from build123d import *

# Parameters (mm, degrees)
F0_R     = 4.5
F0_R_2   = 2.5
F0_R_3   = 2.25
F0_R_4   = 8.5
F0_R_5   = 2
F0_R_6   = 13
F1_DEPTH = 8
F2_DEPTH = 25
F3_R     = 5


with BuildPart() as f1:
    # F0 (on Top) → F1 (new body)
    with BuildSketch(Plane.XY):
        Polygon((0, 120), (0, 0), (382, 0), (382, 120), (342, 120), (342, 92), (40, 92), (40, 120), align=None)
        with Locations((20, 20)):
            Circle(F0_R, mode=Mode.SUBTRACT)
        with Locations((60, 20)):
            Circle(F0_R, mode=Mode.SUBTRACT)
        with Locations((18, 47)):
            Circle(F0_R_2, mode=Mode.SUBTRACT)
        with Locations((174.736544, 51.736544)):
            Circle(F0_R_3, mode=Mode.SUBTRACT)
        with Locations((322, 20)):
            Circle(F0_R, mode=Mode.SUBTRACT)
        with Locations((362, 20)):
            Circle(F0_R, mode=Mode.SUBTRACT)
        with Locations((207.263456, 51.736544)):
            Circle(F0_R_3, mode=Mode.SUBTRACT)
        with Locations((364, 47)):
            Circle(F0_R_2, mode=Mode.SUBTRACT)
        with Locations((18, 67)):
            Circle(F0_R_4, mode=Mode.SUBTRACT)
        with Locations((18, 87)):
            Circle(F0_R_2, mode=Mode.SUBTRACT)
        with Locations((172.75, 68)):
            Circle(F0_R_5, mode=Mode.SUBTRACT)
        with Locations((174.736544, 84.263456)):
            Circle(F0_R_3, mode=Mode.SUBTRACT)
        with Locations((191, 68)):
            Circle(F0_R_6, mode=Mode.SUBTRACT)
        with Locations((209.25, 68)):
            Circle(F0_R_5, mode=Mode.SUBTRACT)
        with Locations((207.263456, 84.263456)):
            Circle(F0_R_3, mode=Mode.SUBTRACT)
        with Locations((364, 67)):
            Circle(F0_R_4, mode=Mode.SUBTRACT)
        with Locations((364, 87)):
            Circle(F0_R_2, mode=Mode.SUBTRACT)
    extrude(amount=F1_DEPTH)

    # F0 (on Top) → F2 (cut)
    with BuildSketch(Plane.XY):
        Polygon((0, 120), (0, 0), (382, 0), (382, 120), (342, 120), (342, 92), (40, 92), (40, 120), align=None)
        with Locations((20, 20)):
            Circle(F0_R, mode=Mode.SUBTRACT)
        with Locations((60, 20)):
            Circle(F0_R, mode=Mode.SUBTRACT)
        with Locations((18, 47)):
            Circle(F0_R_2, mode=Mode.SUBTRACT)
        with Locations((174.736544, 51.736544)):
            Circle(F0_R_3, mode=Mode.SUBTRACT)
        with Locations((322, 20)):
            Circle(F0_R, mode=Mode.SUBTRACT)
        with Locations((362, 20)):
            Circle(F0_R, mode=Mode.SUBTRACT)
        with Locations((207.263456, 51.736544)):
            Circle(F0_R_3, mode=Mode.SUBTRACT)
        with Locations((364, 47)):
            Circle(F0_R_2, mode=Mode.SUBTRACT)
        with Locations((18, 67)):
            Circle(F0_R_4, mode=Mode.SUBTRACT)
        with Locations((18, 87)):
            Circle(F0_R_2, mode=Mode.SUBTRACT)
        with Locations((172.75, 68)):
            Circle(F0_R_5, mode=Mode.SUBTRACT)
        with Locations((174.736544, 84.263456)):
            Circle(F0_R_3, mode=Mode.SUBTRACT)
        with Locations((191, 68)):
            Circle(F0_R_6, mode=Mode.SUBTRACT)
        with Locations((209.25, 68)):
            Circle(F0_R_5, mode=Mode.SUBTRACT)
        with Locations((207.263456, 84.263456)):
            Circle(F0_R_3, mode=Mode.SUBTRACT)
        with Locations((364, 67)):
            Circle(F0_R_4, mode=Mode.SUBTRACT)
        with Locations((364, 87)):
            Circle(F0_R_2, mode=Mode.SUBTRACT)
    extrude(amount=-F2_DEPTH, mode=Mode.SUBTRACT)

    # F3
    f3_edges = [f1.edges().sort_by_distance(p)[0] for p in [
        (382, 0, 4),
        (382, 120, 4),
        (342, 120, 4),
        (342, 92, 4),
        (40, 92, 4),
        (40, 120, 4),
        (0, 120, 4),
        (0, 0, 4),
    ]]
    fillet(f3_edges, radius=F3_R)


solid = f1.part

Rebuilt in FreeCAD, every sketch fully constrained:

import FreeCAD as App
import Part
import Sketcher


def edges_at(feature, points):
    """Names of the edges that pass closest to the given points."""
    edges = feature.Shape.Edges
    near = lambda p: min(range(len(edges)), key=lambda i: edges[i].distToShape(Part.Vertex(*p))[0])
    return sorted({f"Edge{near(p) + 1}" for p in points})


def add_polygon(sketch, points):
    """Adds a closed chain of lines whose ends are joined by coincident constraints."""
    first, n = sketch.GeometryCount, len(points)
    for a, b in zip(points, points[1:] + points[:1]):
        sketch.addGeometry(Part.LineSegment(App.Vector(*a, 0), App.Vector(*b, 0)), False)
    for i in range(n):
        sketch.addConstraint(Sketcher.Constraint("Coincident", first + i, 2, first + (i + 1) % n, 1))

doc = App.newDocument("Part")
params = doc.addObject("Spreadsheet::Sheet", "Params")
for row, (alias, value) in enumerate([
    ("sketch1_diameter", "9 mm"),
    ("sketch1_diameter2", "5 mm"),
    ("sketch1_diameter3", "17 mm"),
    ("sketch1_diameter4", "4 mm"),
    ("sketch1_diameter5", "26 mm"),
    ("pad1_length", "8 mm"),
    ("sketch2_diameter", "9 mm"),
    ("sketch2_diameter2", "5 mm"),
    ("sketch2_diameter3", "17 mm"),
    ("sketch2_diameter4", "4 mm"),
    ("sketch2_diameter5", "26 mm"),
    ("pocket1_length", "25 mm"),
    ("fillet_radius", "5 mm"),
], start=1):
    params.set(f"A{row}", alias)
    params.set(f"B{row}", "=" + value)
    params.setAlias(f"B{row}", alias)

body = doc.addObject("PartDesign::Body", "Body")

# Sketch on XY plane
sketch1 = body.newObject("Sketcher::SketchObject", "Sketch")
sketch1.AttachmentSupport = (doc.getObject("XY_Plane"), [""])
sketch1.MapMode = "FlatFace"
add_polygon(sketch1, [(0, 120), (0, 0), (382, 0), (382, 120), (342, 120), (342, 92), (40, 92), (40, 120)])  # lines 0-7
sketch1.addGeometry(Part.Circle(App.Vector(20, 20, 0), App.Vector(0, 0, 1), 4.5), False)  # 8
sketch1.addGeometry(Part.Circle(App.Vector(60, 20, 0), App.Vector(0, 0, 1), 4.5), False)  # 9
sketch1.addGeometry(Part.Circle(App.Vector(18, 47, 0), App.Vector(0, 0, 1), 2.5), False)  # 10
sketch1.addGeometry(Part.Circle(App.Vector(174.7, 51.7, 0), App.Vector(0, 0, 1), 2.2), False)  # 11
sketch1.addGeometry(Part.Circle(App.Vector(322, 20, 0), App.Vector(0, 0, 1), 4.5), False)  # 12
sketch1.addGeometry(Part.Circle(App.Vector(362, 20, 0), App.Vector(0, 0, 1), 4.5), False)  # 13
sketch1.addGeometry(Part.Circle(App.Vector(207.3, 51.7, 0), App.Vector(0, 0, 1), 2.2), False)  # 14
sketch1.addGeometry(Part.Circle(App.Vector(364, 47, 0), App.Vector(0, 0, 1), 2.5), False)  # 15
sketch1.addGeometry(Part.Circle(App.Vector(18, 67, 0), App.Vector(0, 0, 1), 8.5), False)  # 16
sketch1.addGeometry(Part.Circle(App.Vector(172.8, 68, 0), App.Vector(0, 0, 1), 2), False)  # 17
sketch1.addGeometry(Part.Circle(App.Vector(18, 87, 0), App.Vector(0, 0, 1), 2.5), False)  # 18
sketch1.addGeometry(Part.Circle(App.Vector(174.7, 84.3, 0), App.Vector(0, 0, 1), 2.2), False)  # 19
sketch1.addGeometry(Part.Circle(App.Vector(191, 68, 0), App.Vector(0, 0, 1), 13), False)  # 20
sketch1.addGeometry(Part.Circle(App.Vector(209.2, 68, 0), App.Vector(0, 0, 1), 2), False)  # 21
sketch1.addGeometry(Part.Circle(App.Vector(364, 67, 0), App.Vector(0, 0, 1), 8.5), False)  # 22
sketch1.addGeometry(Part.Circle(App.Vector(207.3, 84.3, 0), App.Vector(0, 0, 1), 2.2), False)  # 23
sketch1.addGeometry(Part.Circle(App.Vector(364, 87, 0), App.Vector(0, 0, 1), 2.5), False)  # 24
sketch1.addConstraint(Sketcher.Constraint("Vertical", 0))
sketch1.addConstraint(Sketcher.Constraint("Horizontal", 1))
sketch1.addConstraint(Sketcher.Constraint("Vertical", 2))
sketch1.addConstraint(Sketcher.Constraint("Horizontal", 3))
sketch1.addConstraint(Sketcher.Constraint("Vertical", 4))
sketch1.addConstraint(Sketcher.Constraint("Horizontal", 5))
sketch1.addConstraint(Sketcher.Constraint("Vertical", 6))
sketch1.addConstraint(Sketcher.Constraint("Horizontal", 7))
sketch1.addConstraint(Sketcher.Constraint("Coincident", 0, 2, -1, 1))
sketch1.addConstraint(Sketcher.Constraint("Equal", 8, 9))
sketch1.addConstraint(Sketcher.Constraint("Equal", 9, 12))
sketch1.addConstraint(Sketcher.Constraint("Equal", 12, 13))
sketch1.addConstraint(Sketcher.Constraint("Equal", 11, 14))
sketch1.addConstraint(Sketcher.Constraint("Equal", 10, 15))
sketch1.addConstraint(Sketcher.Constraint("Equal", 15, 18))
sketch1.addConstraint(Sketcher.Constraint("Equal", 14, 19))
sketch1.addConstraint(Sketcher.Constraint("Equal", 17, 21))
sketch1.addConstraint(Sketcher.Constraint("Equal", 16, 22))
sketch1.addConstraint(Sketcher.Constraint("Equal", 19, 23))
sketch1.addConstraint(Sketcher.Constraint("Equal", 18, 24))
sketch1.addConstraint(Sketcher.Constraint("Horizontal", 8, 3, 9, 3))
sketch1.addConstraint(Sketcher.Constraint("Horizontal", 9, 3, 12, 3))
sketch1.addConstraint(Sketcher.Constraint("Horizontal", 12, 3, 13, 3))
sketch1.addConstraint(Sketcher.Constraint("Horizontal", 11, 3, 14, 3))
sketch1.addConstraint(Sketcher.Constraint("Horizontal", 10, 3, 15, 3))
sketch1.addConstraint(Sketcher.Constraint("Horizontal", 17, 3, 20, 3))
sketch1.addConstraint(Sketcher.Constraint("Horizontal", 20, 3, 21, 3))
sketch1.addConstraint(Sketcher.Constraint("Horizontal", 16, 3, 22, 3))
sketch1.addConstraint(Sketcher.Constraint("Horizontal", 19, 3, 23, 3))
sketch1.addConstraint(Sketcher.Constraint("Horizontal", 18, 3, 24, 3))
sketch1.addConstraint(Sketcher.Constraint("Horizontal", 3, 2, 6, 2))
sketch1.addConstraint(Sketcher.Constraint("Vertical", 10, 3, 16, 3))
sketch1.addConstraint(Sketcher.Constraint("Vertical", 16, 3, 18, 3))
sketch1.addConstraint(Sketcher.Constraint("Vertical", 11, 3, 19, 3))
sketch1.addConstraint(Sketcher.Constraint("Vertical", 15, 3, 22, 3))
sketch1.addConstraint(Sketcher.Constraint("Vertical", 14, 3, 23, 3))
sketch1.addConstraint(Sketcher.Constraint("Vertical", 22, 3, 24, 3))
sketch1.addConstraint(Sketcher.Constraint("Equal", 3, 7))
sketch1.addConstraint(Sketcher.Constraint("Diameter", 8, 9.0))
sketch1.addConstraint(Sketcher.Constraint("Diameter", 10, 5.0))
sketch1.addConstraint(Sketcher.Constraint("Diameter", 16, 17.0))
sketch1.addConstraint(Sketcher.Constraint("Diameter", 17, 4.0))
sketch1.addConstraint(Sketcher.Constraint("Diameter", 20, 26.0))
sketch1.addConstraint(Sketcher.Constraint("Diameter", 11, 4.5))
sketch1.addConstraint(Sketcher.Constraint("DistanceX", 1, 1, 1, 2, 382.0))
sketch1.addConstraint(Sketcher.Constraint("DistanceX", 3, 2, 3, 1, 40.0))
sketch1.addConstraint(Sketcher.Constraint("DistanceY", 0, 2, 0, 1, 120.0))
sketch1.addConstraint(Sketcher.Constraint("DistanceY", 4, 2, 4, 1, 28.0))
sketch1.addConstraint(Sketcher.Constraint("DistanceX", -1, 1, 8, 3, 20.0))
sketch1.addConstraint(Sketcher.Constraint("DistanceY", -1, 1, 8, 3, 20.0))
sketch1.addConstraint(Sketcher.Constraint("DistanceX", -1, 1, 9, 3, 60.0))
sketch1.addConstraint(Sketcher.Constraint("DistanceX", -1, 1, 10, 3, 18.0))
sketch1.addConstraint(Sketcher.Constraint("DistanceY", -1, 1, 10, 3, 47.0))
sketch1.addConstraint(Sketcher.Constraint("DistanceX", -1, 1, 12, 3, 322.0))
sketch1.addConstraint(Sketcher.Constraint("DistanceX", -1, 1, 13, 3, 362.0))
sketch1.addConstraint(Sketcher.Constraint("DistanceX", -1, 1, 15, 3, 364.0))
sketch1.addConstraint(Sketcher.Constraint("DistanceY", -1, 1, 16, 3, 67.0))
sketch1.addConstraint(Sketcher.Constraint("DistanceY", -1, 1, 17, 3, 68.0))
sketch1.addConstraint(Sketcher.Constraint("DistanceY", -1, 1, 18, 3, 87.0))
sketch1.addConstraint(Sketcher.Constraint("DistanceX", -1, 1, 20, 3, 191.0))
sketch1.addConstraint(Sketcher.Constraint("DistanceX", 17, 3, 21, 3, 36.5))
sketch1.addConstraint(Sketcher.Constraint("DistanceX", -1, 1, 17, 3, 172.75))
sketch1.addConstraint(Sketcher.Constraint("DistanceX", 11, 3, 14, 3, 32.526912))
sketch1.addConstraint(Sketcher.Constraint("DistanceX", -1, 1, 11, 3, 174.736544))
sketch1.addConstraint(Sketcher.Constraint("DistanceY", -1, 1, 11, 3, 51.736544))
sketch1.addConstraint(Sketcher.Constraint("DistanceY", -1, 1, 19, 3, 84.263456))
sketch1.setExpression("Constraints[46]", "Params.sketch1_diameter")
sketch1.setExpression("Constraints[47]", "Params.sketch1_diameter2")
sketch1.setExpression("Constraints[48]", "Params.sketch1_diameter3")
sketch1.setExpression("Constraints[49]", "Params.sketch1_diameter4")
sketch1.setExpression("Constraints[50]", "Params.sketch1_diameter5")
pad1 = body.newObject("PartDesign::Pad", "Pad")
pad1.Profile = sketch1
pad1.setExpression("Length", "Params.pad1_length")

# Sketch on XY plane
sketch2 = body.newObject("Sketcher::SketchObject", "Sketch001")
sketch2.AttachmentSupport = (doc.getObject("XY_Plane"), [""])
sketch2.MapMode = "FlatFace"
add_polygon(sketch2, [(0, 120), (0, 0), (382, 0), (382, 120), (342, 120), (342, 92), (40, 92), (40, 120)])  # lines 0-7
sketch2.addGeometry(Part.Circle(App.Vector(20, 20, 0), App.Vector(0, 0, 1), 4.5), False)  # 8
sketch2.addGeometry(Part.Circle(App.Vector(60, 20, 0), App.Vector(0, 0, 1), 4.5), False)  # 9
sketch2.addGeometry(Part.Circle(App.Vector(18, 47, 0), App.Vector(0, 0, 1), 2.5), False)  # 10
sketch2.addGeometry(Part.Circle(App.Vector(174.7, 51.7, 0), App.Vector(0, 0, 1), 2.2), False)  # 11
sketch2.addGeometry(Part.Circle(App.Vector(322, 20, 0), App.Vector(0, 0, 1), 4.5), False)  # 12
sketch2.addGeometry(Part.Circle(App.Vector(362, 20, 0), App.Vector(0, 0, 1), 4.5), False)  # 13
sketch2.addGeometry(Part.Circle(App.Vector(207.3, 51.7, 0), App.Vector(0, 0, 1), 2.2), False)  # 14
sketch2.addGeometry(Part.Circle(App.Vector(364, 47, 0), App.Vector(0, 0, 1), 2.5), False)  # 15
sketch2.addGeometry(Part.Circle(App.Vector(18, 67, 0), App.Vector(0, 0, 1), 8.5), False)  # 16
sketch2.addGeometry(Part.Circle(App.Vector(172.8, 68, 0), App.Vector(0, 0, 1), 2), False)  # 17
sketch2.addGeometry(Part.Circle(App.Vector(18, 87, 0), App.Vector(0, 0, 1), 2.5), False)  # 18
sketch2.addGeometry(Part.Circle(App.Vector(174.7, 84.3, 0), App.Vector(0, 0, 1), 2.2), False)  # 19
sketch2.addGeometry(Part.Circle(App.Vector(191, 68, 0), App.Vector(0, 0, 1), 13), False)  # 20
sketch2.addGeometry(Part.Circle(App.Vector(209.2, 68, 0), App.Vector(0, 0, 1), 2), False)  # 21
sketch2.addGeometry(Part.Circle(App.Vector(364, 67, 0), App.Vector(0, 0, 1), 8.5), False)  # 22
sketch2.addGeometry(Part.Circle(App.Vector(207.3, 84.3, 0), App.Vector(0, 0, 1), 2.2), False)  # 23
sketch2.addGeometry(Part.Circle(App.Vector(364, 87, 0), App.Vector(0, 0, 1), 2.5), False)  # 24
sketch2.addConstraint(Sketcher.Constraint("Vertical", 0))
sketch2.addConstraint(Sketcher.Constraint("Horizontal", 1))
sketch2.addConstraint(Sketcher.Constraint("Vertical", 2))
sketch2.addConstraint(Sketcher.Constraint("Horizontal", 3))
sketch2.addConstraint(Sketcher.Constraint("Vertical", 4))
sketch2.addConstraint(Sketcher.Constraint("Horizontal", 5))
sketch2.addConstraint(Sketcher.Constraint("Vertical", 6))
sketch2.addConstraint(Sketcher.Constraint("Horizontal", 7))
sketch2.addConstraint(Sketcher.Constraint("Coincident", 0, 2, -1, 1))
sketch2.addConstraint(Sketcher.Constraint("Equal", 8, 9))
sketch2.addConstraint(Sketcher.Constraint("Equal", 9, 12))
sketch2.addConstraint(Sketcher.Constraint("Equal", 12, 13))
sketch2.addConstraint(Sketcher.Constraint("Equal", 11, 14))
sketch2.addConstraint(Sketcher.Constraint("Equal", 10, 15))
sketch2.addConstraint(Sketcher.Constraint("Equal", 15, 18))
sketch2.addConstraint(Sketcher.Constraint("Equal", 14, 19))
sketch2.addConstraint(Sketcher.Constraint("Equal", 17, 21))
sketch2.addConstraint(Sketcher.Constraint("Equal", 16, 22))
sketch2.addConstraint(Sketcher.Constraint("Equal", 19, 23))
sketch2.addConstraint(Sketcher.Constraint("Equal", 18, 24))
sketch2.addConstraint(Sketcher.Constraint("Horizontal", 8, 3, 9, 3))
sketch2.addConstraint(Sketcher.Constraint("Horizontal", 9, 3, 12, 3))
sketch2.addConstraint(Sketcher.Constraint("Horizontal", 12, 3, 13, 3))
sketch2.addConstraint(Sketcher.Constraint("Horizontal", 11, 3, 14, 3))
sketch2.addConstraint(Sketcher.Constraint("Horizontal", 10, 3, 15, 3))
sketch2.addConstraint(Sketcher.Constraint("Horizontal", 17, 3, 20, 3))
sketch2.addConstraint(Sketcher.Constraint("Horizontal", 20, 3, 21, 3))
sketch2.addConstraint(Sketcher.Constraint("Horizontal", 16, 3, 22, 3))
sketch2.addConstraint(Sketcher.Constraint("Horizontal", 19, 3, 23, 3))
sketch2.addConstraint(Sketcher.Constraint("Horizontal", 18, 3, 24, 3))
sketch2.addConstraint(Sketcher.Constraint("Horizontal", 3, 2, 6, 2))
sketch2.addConstraint(Sketcher.Constraint("Vertical", 10, 3, 16, 3))
sketch2.addConstraint(Sketcher.Constraint("Vertical", 16, 3, 18, 3))
sketch2.addConstraint(Sketcher.Constraint("Vertical", 11, 3, 19, 3))
sketch2.addConstraint(Sketcher.Constraint("Vertical", 15, 3, 22, 3))
sketch2.addConstraint(Sketcher.Constraint("Vertical", 14, 3, 23, 3))
sketch2.addConstraint(Sketcher.Constraint("Vertical", 22, 3, 24, 3))
sketch2.addConstraint(Sketcher.Constraint("Equal", 3, 7))
sketch2.addConstraint(Sketcher.Constraint("Diameter", 8, 9.0))
sketch2.addConstraint(Sketcher.Constraint("Diameter", 10, 5.0))
sketch2.addConstraint(Sketcher.Constraint("Diameter", 16, 17.0))
sketch2.addConstraint(Sketcher.Constraint("Diameter", 17, 4.0))
sketch2.addConstraint(Sketcher.Constraint("Diameter", 20, 26.0))
sketch2.addConstraint(Sketcher.Constraint("Diameter", 11, 4.5))
sketch2.addConstraint(Sketcher.Constraint("DistanceX", 1, 1, 1, 2, 382.0))
sketch2.addConstraint(Sketcher.Constraint("DistanceX", 3, 2, 3, 1, 40.0))
sketch2.addConstraint(Sketcher.Constraint("DistanceY", 0, 2, 0, 1, 120.0))
sketch2.addConstraint(Sketcher.Constraint("DistanceY", 4, 2, 4, 1, 28.0))
sketch2.addConstraint(Sketcher.Constraint("DistanceX", -1, 1, 8, 3, 20.0))
sketch2.addConstraint(Sketcher.Constraint("DistanceY", -1, 1, 8, 3, 20.0))
sketch2.addConstraint(Sketcher.Constraint("DistanceX", -1, 1, 9, 3, 60.0))
sketch2.addConstraint(Sketcher.Constraint("DistanceX", -1, 1, 10, 3, 18.0))
sketch2.addConstraint(Sketcher.Constraint("DistanceY", -1, 1, 10, 3, 47.0))
sketch2.addConstraint(Sketcher.Constraint("DistanceX", -1, 1, 12, 3, 322.0))
sketch2.addConstraint(Sketcher.Constraint("DistanceX", -1, 1, 13, 3, 362.0))
sketch2.addConstraint(Sketcher.Constraint("DistanceX", -1, 1, 15, 3, 364.0))
sketch2.addConstraint(Sketcher.Constraint("DistanceY", -1, 1, 16, 3, 67.0))
sketch2.addConstraint(Sketcher.Constraint("DistanceY", -1, 1, 17, 3, 68.0))
sketch2.addConstraint(Sketcher.Constraint("DistanceY", -1, 1, 18, 3, 87.0))
sketch2.addConstraint(Sketcher.Constraint("DistanceX", -1, 1, 20, 3, 191.0))
sketch2.addConstraint(Sketcher.Constraint("DistanceX", 17, 3, 21, 3, 36.5))
sketch2.addConstraint(Sketcher.Constraint("DistanceX", -1, 1, 17, 3, 172.75))
sketch2.addConstraint(Sketcher.Constraint("DistanceX", 11, 3, 14, 3, 32.526912))
sketch2.addConstraint(Sketcher.Constraint("DistanceX", -1, 1, 11, 3, 174.736544))
sketch2.addConstraint(Sketcher.Constraint("DistanceY", -1, 1, 11, 3, 51.736544))
sketch2.addConstraint(Sketcher.Constraint("DistanceY", -1, 1, 19, 3, 84.263456))
sketch2.setExpression("Constraints[46]", "Params.sketch2_diameter")
sketch2.setExpression("Constraints[47]", "Params.sketch2_diameter2")
sketch2.setExpression("Constraints[48]", "Params.sketch2_diameter3")
sketch2.setExpression("Constraints[49]", "Params.sketch2_diameter4")
sketch2.setExpression("Constraints[50]", "Params.sketch2_diameter5")
pocket1 = body.newObject("PartDesign::Pocket", "Pocket")
pocket1.Profile = sketch2
pocket1.setExpression("Length", "Params.pocket1_length")
doc.recompute()

fillet = body.newObject("PartDesign::Fillet", "Fillet")
fillet.Base = (pocket1, edges_at(pocket1, [
    (382, 0, 4),
    (382, 120, 4),
    (342, 120, 4),
    (342, 92, 4),
    (40, 92, 4),
    (40, 120, 4),
    (0, 120, 4),
    (0, 0, 4),
]))
fillet.setExpression("Radius", "Params.fillet_radius")

doc.recompute()
